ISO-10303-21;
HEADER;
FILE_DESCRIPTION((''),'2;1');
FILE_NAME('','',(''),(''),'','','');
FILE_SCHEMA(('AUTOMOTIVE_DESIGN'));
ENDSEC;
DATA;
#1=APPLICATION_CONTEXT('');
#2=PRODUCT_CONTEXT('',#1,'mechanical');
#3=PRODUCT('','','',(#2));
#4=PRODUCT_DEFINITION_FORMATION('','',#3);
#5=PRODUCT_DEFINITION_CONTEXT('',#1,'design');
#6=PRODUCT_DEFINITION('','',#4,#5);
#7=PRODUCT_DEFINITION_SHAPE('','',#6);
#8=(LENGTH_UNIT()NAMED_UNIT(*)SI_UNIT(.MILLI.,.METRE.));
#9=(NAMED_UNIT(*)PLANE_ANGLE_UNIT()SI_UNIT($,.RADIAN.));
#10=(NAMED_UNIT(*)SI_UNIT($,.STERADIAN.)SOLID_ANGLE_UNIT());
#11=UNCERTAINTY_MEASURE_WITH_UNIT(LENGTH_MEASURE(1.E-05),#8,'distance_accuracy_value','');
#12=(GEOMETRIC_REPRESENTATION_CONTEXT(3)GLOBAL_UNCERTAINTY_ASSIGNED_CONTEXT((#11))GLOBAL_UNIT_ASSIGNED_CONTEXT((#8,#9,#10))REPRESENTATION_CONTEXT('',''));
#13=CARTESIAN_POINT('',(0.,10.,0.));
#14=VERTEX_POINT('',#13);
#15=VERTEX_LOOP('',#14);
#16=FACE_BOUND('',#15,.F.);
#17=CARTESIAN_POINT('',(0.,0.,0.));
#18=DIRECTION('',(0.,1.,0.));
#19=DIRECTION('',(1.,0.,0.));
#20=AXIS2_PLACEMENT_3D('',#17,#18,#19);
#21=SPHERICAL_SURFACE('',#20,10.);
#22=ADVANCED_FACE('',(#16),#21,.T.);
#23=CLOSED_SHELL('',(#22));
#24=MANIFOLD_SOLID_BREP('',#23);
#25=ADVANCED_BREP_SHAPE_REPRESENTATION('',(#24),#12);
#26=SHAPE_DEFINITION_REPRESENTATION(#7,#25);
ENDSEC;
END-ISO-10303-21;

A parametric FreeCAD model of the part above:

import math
import FreeCAD as App
import Part
import Sketcher

V = App.Vector

doc = App.newDocument("Part")
body = doc.addObject("PartDesign::Body", "Body")

sketch1 = doc.addObject("Sketcher::SketchObject", "Sketch")
body.addObject(sketch1)
sketch1.AttachmentSupport = (doc.XY_Plane, [""])
sketch1.MapMode = "FlatFace"
sketch1.addGeometry(Part.LineSegment(V(0, 10, 0), V(0, -10, 0)), False)
sketch1.addGeometry(Part.ArcOfCircle(Part.Circle(V(0, 0, 0), V(0, 0, 1), 10), math.radians(-90), math.radians(90)), False)
sketch1.addConstraint(Sketcher.Constraint("Coincident", 0, 1, 1, 2))
sketch1.addConstraint(Sketcher.Constraint("Coincident", 1, 1, 0, 2))
sketch1.addConstraint(Sketcher.Constraint("Vertical", 0))
sketch1.addConstraint(Sketcher.Constraint("Coincident", 1, 3, -1, 1))
sketch1.addConstraint(Sketcher.Constraint("PointOnObject", 0, 1, -2))
sketch1.addConstraint(Sketcher.Constraint("Radius", 1, 10.0))
revolution = doc.addObject("PartDesign::Revolution", "Revolution")
body.addObject(revolution)
revolution.Profile = sketch1
revolution.ReferenceAxis = (sketch1, ["V_Axis"])
revolution.Angle = 360

doc.recompute()
